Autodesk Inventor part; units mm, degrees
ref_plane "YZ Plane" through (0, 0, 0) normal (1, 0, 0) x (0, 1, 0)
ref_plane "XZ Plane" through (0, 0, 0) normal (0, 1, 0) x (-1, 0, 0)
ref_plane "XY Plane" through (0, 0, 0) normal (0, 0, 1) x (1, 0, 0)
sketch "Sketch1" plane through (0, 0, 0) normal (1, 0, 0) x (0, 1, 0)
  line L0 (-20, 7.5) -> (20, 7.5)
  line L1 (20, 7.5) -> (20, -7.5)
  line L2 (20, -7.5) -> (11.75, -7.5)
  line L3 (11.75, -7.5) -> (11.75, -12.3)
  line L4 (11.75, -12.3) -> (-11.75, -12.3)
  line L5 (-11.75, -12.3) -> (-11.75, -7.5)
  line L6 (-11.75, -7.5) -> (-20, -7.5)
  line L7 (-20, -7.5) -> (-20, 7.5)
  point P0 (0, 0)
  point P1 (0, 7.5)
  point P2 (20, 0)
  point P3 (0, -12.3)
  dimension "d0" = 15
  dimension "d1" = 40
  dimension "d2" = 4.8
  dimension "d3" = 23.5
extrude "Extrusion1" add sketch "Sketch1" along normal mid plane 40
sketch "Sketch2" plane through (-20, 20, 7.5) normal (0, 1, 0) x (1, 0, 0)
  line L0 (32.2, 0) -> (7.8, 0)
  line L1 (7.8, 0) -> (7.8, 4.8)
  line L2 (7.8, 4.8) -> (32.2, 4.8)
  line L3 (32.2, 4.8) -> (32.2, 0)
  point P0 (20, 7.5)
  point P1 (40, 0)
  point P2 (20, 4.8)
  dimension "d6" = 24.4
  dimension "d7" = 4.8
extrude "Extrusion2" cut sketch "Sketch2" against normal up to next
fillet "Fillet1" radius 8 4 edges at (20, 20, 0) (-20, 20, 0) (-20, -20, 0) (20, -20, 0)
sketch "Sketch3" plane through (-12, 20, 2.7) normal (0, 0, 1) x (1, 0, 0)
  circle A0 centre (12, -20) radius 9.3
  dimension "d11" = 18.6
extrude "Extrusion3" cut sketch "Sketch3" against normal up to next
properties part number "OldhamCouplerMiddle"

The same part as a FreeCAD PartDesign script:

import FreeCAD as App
import Part
import Sketcher
from FreeCAD import Vector


def edges_at(feature, points):
    """Names of the edges that pass closest to the given points."""
    edges = feature.Shape.Edges
    near = lambda p: min(range(len(edges)), key=lambda i: edges[i].distToShape(Part.Vertex(*p))[0])
    return sorted({f"Edge{near(p) + 1}" for p in points})


def add_polygon(sketch, points):
    """Adds a closed chain of lines whose ends are joined by coincident constraints."""
    first, n = sketch.GeometryCount, len(points)
    for a, b in zip(points, points[1:] + points[:1]):
        sketch.addGeometry(Part.LineSegment(App.Vector(*a, 0), App.Vector(*b, 0)), False)
    for i in range(n):
        sketch.addConstraint(Sketcher.Constraint("Coincident", first + i, 2, first + (i + 1) % n, 1))

doc = App.newDocument("Part")
params = doc.addObject("Spreadsheet::Sheet", "Params")
for row, (alias, value) in enumerate([
    ("sketch1_width", "40 mm"),
    ("sketch1_height", "15 mm"),
    ("sketch1_width2", "23.5 mm"),
    ("sketch1_height2", "4.8 mm"),
    ("pad1_length", "40 mm"),
    ("sketch2_width", "24.4 mm"),
    ("sketch2_height", "4.8 mm"),
    ("fillet_radius", "8 mm"),
    ("sketch3_diameter", "18.6 mm"),
], start=1):
    params.set(f"A{row}", alias)
    params.set(f"B{row}", "=" + value)
    params.setAlias(f"B{row}", alias)

body = doc.addObject("PartDesign::Body", "Body")

# Sketch on YZ plane
sketch1 = doc.addObject("Sketcher::SketchObject", "Sketch")
body.addObject(sketch1)
sketch1.AttachmentSupport = (doc.YZ_Plane, [""])
sketch1.MapMode = "FlatFace"
add_polygon(sketch1, [(20, 7.5), (-20, 7.5), (-20, -7.5), (-11.75, -7.5), (-11.75, -12.3), (11.75, -12.3), (11.75, -7.5), (20, -7.5)])  # lines 0-7
sketch1.addConstraint([
    Sketcher.Constraint("Horizontal", 0),
    Sketcher.Constraint("Vertical", 1),
    Sketcher.Constraint("Horizontal", 2),
    Sketcher.Constraint("Vertical", 3),
    Sketcher.Constraint("Horizontal", 4),
    Sketcher.Constraint("Vertical", 5),
    Sketcher.Constraint("Horizontal", 6),
    Sketcher.Constraint("Vertical", 7),
    Sketcher.Constraint("Symmetric", 0, 2, 6, 2, -1, 1),
    Sketcher.Constraint("Symmetric", 2, 2, 5, 2, -2),
    Sketcher.Constraint("DistanceX", 0, 2, 0, 1, 40.0),
    Sketcher.Constraint("DistanceY", 1, 2, 1, 1, 15.0),
    Sketcher.Constraint("DistanceX", 4, 1, 4, 2, 23.5),
    Sketcher.Constraint("DistanceY", 3, 2, 3, 1, 4.8),
])
sketch1.setExpression("Constraints[18]", "Params.sketch1_width")
sketch1.setExpression("Constraints[19]", "Params.sketch1_height")
sketch1.setExpression("Constraints[20]", "Params.sketch1_width2")
sketch1.setExpression("Constraints[21]", "Params.sketch1_height2")
pad1 = doc.addObject("PartDesign::Pad", "Pad")
body.addObject(pad1)
pad1.Profile = sketch1
pad1.setExpression("Length", "Params.pad1_length")
pad1.Midplane = True

# Sketch on XZ plane
sketch2 = doc.addObject("Sketcher::SketchObject", "Sketch001")
body.addObject(sketch2)
sketch2.AttachmentSupport = (doc.XZ_Plane, [""])
sketch2.MapMode = "FlatFace"
sketch2.AttachmentOffset = App.Placement(Vector(0, 0, -20), App.Rotation())
add_polygon(sketch2, [(-12.2, 7.5), (12.2, 7.5), (12.2, 2.7), (-12.2, 2.7)])  # lines 0-3
sketch2.addConstraint([
    Sketcher.Constraint("Horizontal", 0),
    Sketcher.Constraint("Vertical", 1),
    Sketcher.Constraint("Horizontal", 2),
    Sketcher.Constraint("Vertical", 3),
    Sketcher.Constraint("DistanceX", 0, 1, 0, 2, 24.4),
    Sketcher.Constraint("DistanceY", 1, 2, 1, 1, 4.8),
    Sketcher.Constraint("DistanceX", -1, 1, 0, 2, 12.2),
    Sketcher.Constraint("DistanceY", -1, 1, 0, 2, 7.5),
])
sketch2.setExpression("Constraints[8]", "Params.sketch2_width")
sketch2.setExpression("Constraints[9]", "Params.sketch2_height")
pocket1 = doc.addObject("PartDesign::Pocket", "Pocket")
body.addObject(pocket1)
pocket1.Profile = sketch2
pocket1.Type = "UpToFirst"
pocket1.Reversed = True
doc.recompute()

fillet = doc.addObject("PartDesign::Fillet", "Fillet")
body.addObject(fillet)
fillet.Base = (pocket1, edges_at(pocket1, [
    (20, 20, 0),
    (-20, 20, 0),
    (-20, -20, 0),
    (20, -20, 0),
]))
fillet.setExpression("Radius", "Params.fillet_radius")

# Sketch on XY plane
sketch3 = doc.addObject("Sketcher::SketchObject", "Sketch002")
body.addObject(sketch3)
sketch3.AttachmentSupport = (doc.XY_Plane, [""])
sketch3.MapMode = "FlatFace"
sketch3.AttachmentOffset = App.Placement(Vector(0, 0, 2.7), App.Rotation())
sketch3.addGeometry(Part.Circle(Vector(0, 0, 0), Vector(0, 0, 1), 9.3), False)
sketch3.addConstraint([
    Sketcher.Constraint("Coincident", 0, 3, -1, 1),
    Sketcher.Constraint("Diameter", 0, 18.6),
])
sketch3.setExpression("Constraints[1]", "Params.sketch3_diameter")
pocket2 = doc.addObject("PartDesign::Pocket", "Pocket001")
body.addObject(pocket2)
pocket2.Profile = sketch3
pocket2.Type = "UpToFirst"

doc.recompute()
